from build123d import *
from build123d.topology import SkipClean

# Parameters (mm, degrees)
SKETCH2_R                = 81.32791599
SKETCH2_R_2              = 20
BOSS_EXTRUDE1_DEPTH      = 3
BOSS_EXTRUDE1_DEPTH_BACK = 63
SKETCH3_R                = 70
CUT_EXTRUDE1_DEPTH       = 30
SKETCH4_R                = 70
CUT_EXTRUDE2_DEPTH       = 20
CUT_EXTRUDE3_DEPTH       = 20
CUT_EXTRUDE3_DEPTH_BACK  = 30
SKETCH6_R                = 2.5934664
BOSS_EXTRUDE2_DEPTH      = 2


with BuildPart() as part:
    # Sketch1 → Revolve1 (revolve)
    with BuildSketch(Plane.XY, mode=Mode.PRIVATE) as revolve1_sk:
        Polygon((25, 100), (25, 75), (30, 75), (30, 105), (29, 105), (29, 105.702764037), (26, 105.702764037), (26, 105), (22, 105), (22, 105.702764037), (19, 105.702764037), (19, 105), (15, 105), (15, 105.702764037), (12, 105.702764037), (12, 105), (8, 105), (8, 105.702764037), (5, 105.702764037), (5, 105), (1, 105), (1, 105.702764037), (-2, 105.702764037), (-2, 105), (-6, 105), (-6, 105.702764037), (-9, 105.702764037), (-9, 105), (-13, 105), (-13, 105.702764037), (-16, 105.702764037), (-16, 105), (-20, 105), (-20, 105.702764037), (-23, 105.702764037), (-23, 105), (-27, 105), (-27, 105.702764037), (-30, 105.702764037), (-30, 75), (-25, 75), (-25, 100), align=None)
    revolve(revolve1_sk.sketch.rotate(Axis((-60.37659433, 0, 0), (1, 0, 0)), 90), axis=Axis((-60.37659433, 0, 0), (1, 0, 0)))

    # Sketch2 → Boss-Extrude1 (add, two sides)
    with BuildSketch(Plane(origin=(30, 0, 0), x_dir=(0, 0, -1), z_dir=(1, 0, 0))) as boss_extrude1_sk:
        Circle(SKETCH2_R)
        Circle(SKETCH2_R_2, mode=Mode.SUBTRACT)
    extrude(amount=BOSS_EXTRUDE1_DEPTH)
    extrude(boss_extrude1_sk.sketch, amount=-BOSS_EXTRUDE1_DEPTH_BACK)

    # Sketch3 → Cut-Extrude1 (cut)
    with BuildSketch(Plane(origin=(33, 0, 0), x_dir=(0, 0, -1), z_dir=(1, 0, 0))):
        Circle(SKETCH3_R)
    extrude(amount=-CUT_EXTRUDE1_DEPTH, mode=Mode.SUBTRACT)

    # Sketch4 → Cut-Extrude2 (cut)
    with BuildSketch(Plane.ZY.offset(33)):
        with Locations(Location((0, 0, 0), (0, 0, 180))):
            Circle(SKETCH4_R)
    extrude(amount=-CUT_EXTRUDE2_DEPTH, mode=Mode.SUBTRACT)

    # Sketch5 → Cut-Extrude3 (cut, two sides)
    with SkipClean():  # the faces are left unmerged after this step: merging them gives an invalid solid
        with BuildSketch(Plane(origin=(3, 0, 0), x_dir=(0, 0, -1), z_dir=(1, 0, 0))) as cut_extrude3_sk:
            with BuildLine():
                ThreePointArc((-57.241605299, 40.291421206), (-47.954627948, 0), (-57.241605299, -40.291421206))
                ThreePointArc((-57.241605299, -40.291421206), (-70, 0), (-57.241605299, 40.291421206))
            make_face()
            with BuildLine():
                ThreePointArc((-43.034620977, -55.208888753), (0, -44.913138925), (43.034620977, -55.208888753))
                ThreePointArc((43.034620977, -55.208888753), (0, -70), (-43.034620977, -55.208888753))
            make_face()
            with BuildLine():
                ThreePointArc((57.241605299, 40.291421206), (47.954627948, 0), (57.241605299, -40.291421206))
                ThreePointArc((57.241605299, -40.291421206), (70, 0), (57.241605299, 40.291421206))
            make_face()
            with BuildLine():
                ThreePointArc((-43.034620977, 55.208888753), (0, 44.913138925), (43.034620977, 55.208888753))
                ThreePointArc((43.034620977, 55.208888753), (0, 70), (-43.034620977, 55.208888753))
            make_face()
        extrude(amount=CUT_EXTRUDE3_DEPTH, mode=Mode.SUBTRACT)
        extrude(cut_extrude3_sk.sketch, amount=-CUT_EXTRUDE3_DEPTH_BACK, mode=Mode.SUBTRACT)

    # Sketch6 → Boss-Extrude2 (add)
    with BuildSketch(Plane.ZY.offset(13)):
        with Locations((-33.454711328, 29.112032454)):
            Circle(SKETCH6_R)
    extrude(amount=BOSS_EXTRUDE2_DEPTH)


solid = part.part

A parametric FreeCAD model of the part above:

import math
import FreeCAD as App
import Part
import Sketcher
Q = App.Units.Quantity

doc = App.newDocument("Part")
params = doc.addObject("Spreadsheet::Sheet", "Params")
for row, (alias, value) in enumerate([
    ("sketch1_width", "5 mm"),
    ("sketch1_width2", "1 mm"),
    ("sketch1_width3", "3 mm"),
    ("sketch1_width4", "4 mm"),
    ("sketch1_height", "25 mm"),
    ("revolution_angle", "360 deg"),
    ("sketch2_diameter", "40 mm"),
    ("pad1_length", "3 mm"),
    ("pad1_length2", "63 mm"),
    ("sketch3_diameter", "140 mm"),
    ("pocket1_length", "30 mm"),
    ("sketch4_diameter", "140 mm"),
    ("pocket2_length", "20 mm"),
    ("sketch5_radius", "70 mm"),
    ("pad2_length", "2 mm"),
], start=1):
    params.set(f"A{row}", alias)
    params.set(f"B{row}", "=" + value)
    params.setAlias(f"B{row}", alias)

body = doc.addObject("PartDesign::Body", "Body")

# Sketch on XY plane
sketch1 = doc.addObject("Sketcher::SketchObject", "Sketch")
body.addObject(sketch1)
sketch1.AttachmentSupport = (doc.XY_Plane, [""])
sketch1.MapMode = "FlatFace"
sketch1.addGeometry([
    Part.LineSegment(App.Vector(25, 100, 0), App.Vector(25, 75, 0)),  # 0
    Part.LineSegment(App.Vector(25, 75, 0), App.Vector(30, 75, 0)),  # 1
    Part.LineSegment(App.Vector(30, 75, 0), App.Vector(30, 105, 0)),  # 2
    Part.LineSegment(App.Vector(30, 105, 0), App.Vector(29, 105, 0)),  # 3
    Part.LineSegment(App.Vector(29, 105, 0), App.Vector(29, 105.702764, 0)),  # 4
    Part.LineSegment(App.Vector(29, 105.702764, 0), App.Vector(26, 105.702764, 0)),  # 5
    Part.LineSegment(App.Vector(26, 105.702764, 0), App.Vector(26, 105, 0)),  # 6
    Part.LineSegment(App.Vector(26, 105, 0), App.Vector(22, 105, 0)),  # 7
    Part.LineSegment(App.Vector(22, 105, 0), App.Vector(22, 105.702764, 0)),  # 8
    Part.LineSegment(App.Vector(22, 105.702764, 0), App.Vector(19, 105.702764, 0)),  # 9
    Part.LineSegment(App.Vector(19, 105.702764, 0), App.Vector(19, 105, 0)),  # 10
    Part.LineSegment(App.Vector(19, 105, 0), App.Vector(15, 105, 0)),  # 11
    Part.LineSegment(App.Vector(15, 105, 0), App.Vector(15, 105.702764, 0)),  # 12
    Part.LineSegment(App.Vector(15, 105.702764, 0), App.Vector(12, 105.702764, 0)),  # 13
    Part.LineSegment(App.Vector(12, 105.702764, 0), App.Vector(12, 105, 0)),  # 14
    Part.LineSegment(App.Vector(12, 105, 0), App.Vector(8, 105, 0)),  # 15
    Part.LineSegment(App.Vector(8, 105, 0), App.Vector(8, 105.702764, 0)),  # 16
    Part.LineSegment(App.Vector(8, 105.702764, 0), App.Vector(5, 105.702764, 0)),  # 17
    Part.LineSegment(App.Vector(5, 105.702764, 0), App.Vector(5, 105, 0)),  # 18
    Part.LineSegment(App.Vector(5, 105, 0), App.Vector(1, 105, 0)),  # 19
    Part.LineSegment(App.Vector(1, 105, 0), App.Vector(1, 105.702764, 0)),  # 20
    Part.LineSegment(App.Vector(1, 105.702764, 0), App.Vector(-2, 105.702764, 0)),  # 21
    Part.LineSegment(App.Vector(-2, 105.702764, 0), App.Vector(-2, 105, 0)),  # 22
    Part.LineSegment(App.Vector(-2, 105, 0), App.Vector(-6, 105, 0)),  # 23
    Part.LineSegment(App.Vector(-6, 105, 0), App.Vector(-6, 105.702764, 0)),  # 24
    Part.LineSegment(App.Vector(-6, 105.702764, 0), App.Vector(-9, 105.702764, 0)),  # 25
    Part.LineSegment(App.Vector(-9, 105.702764, 0), App.Vector(-9, 105, 0)),  # 26
    Part.LineSegment(App.Vector(-9, 105, 0), App.Vector(-13, 105, 0)),  # 27
    Part.LineSegment(App.Vector(-13, 105, 0), App.Vector(-13, 105.702764, 0)),  # 28
    Part.LineSegment(App.Vector(-13, 105.702764, 0), App.Vector(-16, 105.702764, 0)),  # 29
    Part.LineSegment(App.Vector(-16, 105.702764, 0), App.Vector(-16, 105, 0)),  # 30
    Part.LineSegment(App.Vector(-16, 105, 0), App.Vector(-20, 105, 0)),  # 31
    Part.LineSegment(App.Vector(-20, 105, 0), App.Vector(-20, 105.702764, 0)),  # 32
    Part.LineSegment(App.Vector(-20, 105.702764, 0), App.Vector(-23, 105.702764, 0)),  # 33
    Part.LineSegment(App.Vector(-23, 105.702764, 0), App.Vector(-23, 105, 0)),  # 34
    Part.LineSegment(App.Vector(-23, 105, 0), App.Vector(-27, 105, 0)),  # 35
    Part.LineSegment(App.Vector(-27, 105, 0), App.Vector(-27, 105.702764, 0)),  # 36
    Part.LineSegment(App.Vector(-27, 105.702764, 0), App.Vector(-30, 105.702764, 0)),  # 37
    Part.LineSegment(App.Vector(-30, 105.702764, 0), App.Vector(-30, 75, 0)),  # 38
    Part.LineSegment(App.Vector(-30, 75, 0), App.Vector(-25, 75, 0)),  # 39
    Part.LineSegment(App.Vector(-25, 75, 0), App.Vector(-25, 100, 0)),  # 40
    Part.LineSegment(App.Vector(-25, 100, 0), App.Vector(25, 100, 0)),  # 41
], False)
sketch1.addConstraint([
    Sketcher.Constraint("Coincident", 0, 2, 1, 1),
    Sketcher.Constraint("Coincident", 1, 2, 2, 1),
    Sketcher.Constraint("Coincident", 2, 2, 3, 1),
    Sketcher.Constraint("Coincident", 3, 2, 4, 1),
    Sketcher.Constraint("Coincident", 4, 2, 5, 1),
    Sketcher.Constraint("Coincident", 5, 2, 6, 1),
    Sketcher.Constraint("Coincident", 6, 2, 7, 1),
    Sketcher.Constraint("Coincident", 7, 2, 8, 1),
    Sketcher.Constraint("Coincident", 8, 2, 9, 1),
    Sketcher.Constraint("Coincident", 9, 2, 10, 1),
    Sketcher.Constraint("Coincident", 10, 2, 11, 1),
    Sketcher.Constraint("Coincident", 11, 2, 12, 1),
    Sketcher.Constraint("Coincident", 12, 2, 13, 1),
    Sketcher.Constraint("Coincident", 13, 2, 14, 1),
    Sketcher.Constraint("Coincident", 14, 2, 15, 1),
    Sketcher.Constraint("Coincident", 15, 2, 16, 1),
    Sketcher.Constraint("Coincident", 16, 2, 17, 1),
    Sketcher.Constraint("Coincident", 17, 2, 18, 1),
    Sketcher.Constraint("Coincident", 18, 2, 19, 1),
    Sketcher.Constraint("Coincident", 19, 2, 20, 1),
    Sketcher.Constraint("Coincident", 20, 2, 21, 1),
    Sketcher.Constraint("Coincident", 21, 2, 22, 1),
    Sketcher.Constraint("Coincident", 22, 2, 23, 1),
    Sketcher.Constraint("Coincident", 23, 2, 24, 1),
    Sketcher.Constraint("Coincident", 24, 2, 25, 1),
    Sketcher.Constraint("Coincident", 25, 2, 26, 1),
    Sketcher.Constraint("Coincident", 26, 2, 27, 1),
    Sketcher.Constraint("Coincident", 27, 2, 28, 1),
    Sketcher.Constraint("Coincident", 28, 2, 29, 1),
    Sketcher.Constraint("Coincident", 29, 2, 30, 1),
    Sketcher.Constraint("Coincident", 30, 2, 31, 1),
    Sketcher.Constraint("Coincident", 31, 2, 32, 1),
    Sketcher.Constraint("Coincident", 32, 2, 33, 1),
    Sketcher.Constraint("Coincident", 33, 2, 34, 1),
    Sketcher.Constraint("Coincident", 34, 2, 35, 1),
    Sketcher.Constraint("Coincident", 35, 2, 36, 1),
    Sketcher.Constraint("Coincident", 36, 2, 37, 1),
    Sketcher.Constraint("Coincident", 37, 2, 38, 1),
    Sketcher.Constraint("Coincident", 38, 2, 39, 1),
    Sketcher.Constraint("Coincident", 39, 2, 40, 1),
    Sketcher.Constraint("Coincident", 40, 2, 41, 1),
    Sketcher.Constraint("Coincident", 41, 2, 0, 1),
    Sketcher.Constraint("Vertical", 0),
    Sketcher.Constraint("Horizontal", 1),
    Sketcher.Constraint("Vertical", 2),
    Sketcher.Constraint("Horizontal", 3),
    Sketcher.Constraint("Vertical", 4),
    Sketcher.Constraint("Horizontal", 5),
    Sketcher.Constraint("Vertical", 6),
    Sketcher.Constraint("Horizontal", 7),
    Sketcher.Constraint("Vertical", 8),
    Sketcher.Constraint("Horizontal", 9),
    Sketcher.Constraint("Vertical", 10),
    Sketcher.Constraint("Horizontal", 11),
    Sketcher.Constraint("Vertical", 12),
    Sketcher.Constraint("Horizontal", 13),
    Sketcher.Constraint("Vertical", 14),
    Sketcher.Constraint("Horizontal", 15),
    Sketcher.Constraint("Vertical", 16),
    Sketcher.Constraint("Horizontal", 17),
    Sketcher.Constraint("Vertical", 18),
    Sketcher.Constraint("Horizontal", 19),
    Sketcher.Constraint("Vertical", 20),
    Sketcher.Constraint("Horizontal", 21),
    Sketcher.Constraint("Vertical", 22),
    Sketcher.Constraint("Horizontal", 23),
    Sketcher.Constraint("Vertical", 24),
    Sketcher.Constraint("Horizontal", 25),
    Sketcher.Constraint("Vertical", 26),
    Sketcher.Constraint("Horizontal", 27),
    Sketcher.Constraint("Vertical", 28),
    Sketcher.Constraint("Horizontal", 29),
    Sketcher.Constraint("Vertical", 30),
    Sketcher.Constraint("Horizontal", 31),
    Sketcher.Constraint("Vertical", 32),
    Sketcher.Constraint("Horizontal", 33),
    Sketcher.Constraint("Vertical", 34),
    Sketcher.Constraint("Horizontal", 35),
    Sketcher.Constraint("Vertical", 36),
    Sketcher.Constraint("Horizontal", 37),
    Sketcher.Constraint("Vertical", 38),
    Sketcher.Constraint("Horizontal", 39),
    Sketcher.Constraint("Vertical", 40),
    Sketcher.Constraint("Horizontal", 41),
    Sketcher.Constraint("Symmetric", 1, 2, 38, 2, -2),
    Sketcher.Constraint("Horizontal", 3, 2, 6, 2),
    Sketcher.Constraint("Horizontal", 5, 2, 8, 2),
    Sketcher.Constraint("Horizontal", 7, 2, 10, 2),
    Sketcher.Constraint("Horizontal", 9, 2, 12, 2),
    Sketcher.Constraint("Horizontal", 11, 2, 14, 2),
    Sketcher.Constraint("Horizontal", 13, 2, 16, 2),
    Sketcher.Constraint("Horizontal", 15, 2, 18, 2),
    Sketcher.Constraint("Horizontal", 17, 2, 20, 2),
    Sketcher.Constraint("Horizontal", 19, 2, 22, 2),
    Sketcher.Constraint("Horizontal", 21, 2, 24, 2),
    Sketcher.Constraint("Horizontal", 23, 2, 26, 2),
    Sketcher.Constraint("Horizontal", 25, 2, 28, 2),
    Sketcher.Constraint("Horizontal", 27, 2, 30, 2),
    Sketcher.Constraint("Horizontal", 29, 2, 32, 2),
    Sketcher.Constraint("Horizontal", 31, 2, 34, 2),
    Sketcher.Constraint("Horizontal", 33, 2, 36, 2),
    Sketcher.Constraint("Equal", 5, 9),
    Sketcher.Constraint("Equal", 7, 11),
    Sketcher.Constraint("Equal", 9, 13),
    Sketcher.Constraint("Equal", 11, 15),
    Sketcher.Constraint("Equal", 13, 17),
    Sketcher.Constraint("Equal", 15, 19),
    Sketcher.Constraint("Equal", 17, 21),
    Sketcher.Constraint("Equal", 19, 23),
    Sketcher.Constraint("Equal", 21, 25),
    Sketcher.Constraint("Equal", 23, 27),
    Sketcher.Constraint("Equal", 25, 29),
    Sketcher.Constraint("Equal", 27, 31),
    Sketcher.Constraint("Equal", 29, 33),
    Sketcher.Constraint("Equal", 31, 35),
    Sketcher.Constraint("Equal", 33, 37),
    Sketcher.Constraint("Equal", 1, 39),
    Sketcher.Constraint("DistanceX", 1, 1, 1, 2, Q("5 mm")),
    Sketcher.Constraint("DistanceX", 3, 2, 3, 1, Q("1 mm")),
    Sketcher.Constraint("DistanceX", 5, 2, 5, 1, Q("3 mm")),
    Sketcher.Constraint("DistanceX", 7, 2, 7, 1, Q("4 mm")),
    Sketcher.Constraint("DistanceY", 0, 2, 0, 1, Q("25 mm")),
    Sketcher.Constraint("DistanceY", 2, 1, 2, 2, Q("30 mm")),
    Sketcher.Constraint("DistanceY", -1, 1, 0, 2, Q("75 mm")),
    Sketcher.Constraint("DistanceY", 4, 1, 4, 2, Q("0.702764 mm")),
])
sketch1.setExpression("Constraints[117]", "Params.sketch1_width")
sketch1.setExpression("Constraints[118]", "Params.sketch1_width2")
sketch1.setExpression("Constraints[119]", "Params.sketch1_width3")
sketch1.setExpression("Constraints[120]", "Params.sketch1_width4")
sketch1.setExpression("Constraints[121]", "Params.sketch1_height")
revolution = doc.addObject("PartDesign::Revolution", "Revolution")
body.addObject(revolution)
revolution.Profile = sketch1
revolution.ReferenceAxis = (sketch1, ["H_Axis"])
revolution.setExpression("Angle", "Params.revolution_angle")

# Sketch on YZ plane
sketch2 = doc.addObject("Sketcher::SketchObject", "Sketch001")
body.addObject(sketch2)
sketch2.AttachmentSupport = (doc.YZ_Plane, [""])
sketch2.MapMode = "FlatFace"
sketch2.AttachmentOffset = App.Placement(App.Vector(0, 0, 30), App.Rotation())
sketch2.addGeometry([
    Part.Circle(App.Vector(0, 0, 0), App.Vector(0, 0, 1), 81.327916),
    Part.Circle(App.Vector(0, 0, 0), App.Vector(0, 0, 1), 20),
], False)
sketch2.addConstraint([
    Sketcher.Constraint("Coincident", 0, 3, -1, 1),
    Sketcher.Constraint("Coincident", 1, 3, -1, 1),
    Sketcher.Constraint("Diameter", 1, Q("40 mm")),
    Sketcher.Constraint("Diameter", 0, Q("162.655832 mm")),
])
sketch2.setExpression("Constraints[2]", "Params.sketch2_diameter")
pad1 = doc.addObject("PartDesign::Pad", "Pad")
body.addObject(pad1)
pad1.Profile = sketch2
pad1.Type = "TwoLengths"
pad1.setExpression("Length", "Params.pad1_length")
pad1.setExpression("Length2", "Params.pad1_length2")

# Sketch on YZ plane
sketch3 = doc.addObject("Sketcher::SketchObject", "Sketch002")
body.addObject(sketch3)
sketch3.AttachmentSupport = (doc.YZ_Plane, [""])
sketch3.MapMode = "FlatFace"
sketch3.AttachmentOffset = App.Placement(App.Vector(0, 0, 33), App.Rotation())
sketch3.addGeometry(Part.Circle(App.Vector(0, 0, 0), App.Vector(0, 0, 1), 70), False)
sketch3.addConstraint([
    Sketcher.Constraint("Coincident", 0, 3, -1, 1),
    Sketcher.Constraint("Diameter", 0, Q("140 mm")),
])
sketch3.setExpression("Constraints[1]", "Params.sketch3_diameter")
pocket1 = doc.addObject("PartDesign::Pocket", "Pocket")
body.addObject(pocket1)
pocket1.Profile = sketch3
pocket1.setExpression("Length", "Params.pocket1_length")

# Sketch on YZ plane
sketch4 = doc.addObject("Sketcher::SketchObject", "Sketch003")
body.addObject(sketch4)
sketch4.AttachmentSupport = (doc.YZ_Plane, [""])
sketch4.MapMode = "FlatFace"
sketch4.AttachmentOffset = App.Placement(App.Vector(0, 0, -33), App.Rotation())
sketch4.addGeometry(Part.Circle(App.Vector(0, 0, 0), App.Vector(0, 0, 1), 70), False)
sketch4.addConstraint([
    Sketcher.Constraint("Coincident", 0, 3, -1, 1),
    Sketcher.Constraint("Diameter", 0, Q("140 mm")),
])
sketch4.setExpression("Constraints[1]", "Params.sketch4_diameter")
pocket2 = doc.addObject("PartDesign::Pocket", "Pocket001")
body.addObject(pocket2)
pocket2.Profile = sketch4
pocket2.setExpression("Length", "Params.pocket2_length")
pocket2.Reversed = True

# Sketch on YZ plane
sketch5 = doc.addObject("Sketcher::SketchObject", "Sketch004")
body.addObject(sketch5)
sketch5.AttachmentSupport = (doc.YZ_Plane, [""])
sketch5.MapMode = "FlatFace"
sketch5.AttachmentOffset = App.Placement(App.Vector(0, 0, 3), App.Rotation())
sketch5.addGeometry([
    Part.ArcOfCircle(Part.Circle(App.Vector(0, 140, 0), App.Vector(0, 0, 1), 92.045372), math.radians(-115.959413), math.radians(-64.040587)),  # 0
    Part.ArcOfCircle(Part.Circle(App.Vector(0, 0, 0), App.Vector(0, 0, 1), 70), math.radians(54.858918), math.radians(125.141082)),  # 1
    Part.ArcOfCircle(Part.Circle(App.Vector(-140, 0, 0), App.Vector(0, 0, 1), 95.086861), math.radians(-26.909476), math.radians(26.909476)),  # 2
    Part.ArcOfCircle(Part.Circle(App.Vector(0, 0, 0), App.Vector(0, 0, 1), 70), math.radians(142.064042), math.radians(217.935958)),  # 3
    Part.ArcOfCircle(Part.Circle(App.Vector(0, -140, 0), App.Vector(0, 0, 1), 92.045372), math.radians(64.040587), math.radians(115.959413)),  # 4
    Part.ArcOfCircle(Part.Circle(App.Vector(0, 0, 0), App.Vector(0, 0, 1), 70), math.radians(-125.141082), math.radians(-54.858918)),  # 5
    Part.ArcOfCircle(Part.Circle(App.Vector(140, 0, 0), App.Vector(0, 0, 1), 95.086861), math.radians(153.090524), math.radians(206.909476)),  # 6
    Part.ArcOfCircle(Part.Circle(App.Vector(0, 0, 0), App.Vector(0, 0, 1), 70), math.radians(-37.935958), math.radians(37.935958)),  # 7
], False)
sketch5.addConstraint([
    Sketcher.Constraint("Coincident", 0, 1, 1, 2),
    Sketcher.Constraint("Coincident", 1, 1, 0, 2),
    Sketcher.Constraint("Coincident", 2, 1, 3, 2),
    Sketcher.Constraint("Coincident", 3, 1, 2, 2),
    Sketcher.Constraint("Coincident", 4, 1, 5, 2),
    Sketcher.Constraint("Coincident", 5, 1, 4, 2),
    Sketcher.Constraint("Coincident", 6, 1, 7, 2),
    Sketcher.Constraint("Coincident", 7, 1, 6, 2),
    Sketcher.Constraint("Coincident", 1, 3, -1, 1),
    Sketcher.Constraint("Coincident", 3, 3, -1, 1),
    Sketcher.Constraint("Coincident", 5, 3, -1, 1),
    Sketcher.Constraint("Coincident", 7, 3, -1, 1),
    Sketcher.Constraint("Equal", 1, 3),
    Sketcher.Constraint("Equal", 0, 4),
    Sketcher.Constraint("Equal", 3, 5),
    Sketcher.Constraint("Equal", 2, 6),
    Sketcher.Constraint("Equal", 5, 7),
    Sketcher.Constraint("Symmetric", 0, 3, 4, 3, -1, 1),
    Sketcher.Constraint("Symmetric", 2, 3, 6, 3, -1, 1),
    Sketcher.Constraint("PointOnObject", 0, 3, -2),
    Sketcher.Constraint("PointOnObject", 2, 3, -1),
    Sketcher.Constraint("Radius", 1, Q("70 mm")),
    Sketcher.Constraint("DistanceY", -1, 1, 0, 3, Q("140 mm")),
    Sketcher.Constraint("DistanceX", 2, 3, -1, 1, Q("140 mm")),
    Sketcher.Constraint("Radius", 2, Q("95.086861 mm")),
    Sketcher.Constraint("Radius", 0, Q("92.045372 mm")),
])
sketch5.setExpression("Constraints[21]", "Params.sketch5_radius")
pocket3 = doc.addObject("PartDesign::Pocket", "Pocket002")
body.addObject(pocket3)
pocket3.Profile = sketch5
pocket3.Type = "ThroughAll"
pocket3.Midplane = True

# Sketch on YZ plane
sketch6 = doc.addObject("Sketcher::SketchObject", "Sketch005")
body.addObject(sketch6)
sketch6.AttachmentSupport = (doc.YZ_Plane, [""])
sketch6.MapMode = "FlatFace"
sketch6.AttachmentOffset = App.Placement(App.Vector(0, 0, -13), App.Rotation())
sketch6.addGeometry(Part.Circle(App.Vector(29.112032, -33.454711, 0), App.Vector(0, 0, 1), 2.593466), False)
sketch6.addConstraint([
    Sketcher.Constraint("Diameter", 0, Q("5.186933 mm")),
    Sketcher.Constraint("DistanceY", 0, 3, -1, 1, Q("33.454711 mm")),
    Sketcher.Constraint("DistanceX", -1, 1, 0, 3, Q("29.112032 mm")),
])
pad2 = doc.addObject("PartDesign::Pad", "Pad001")
body.addObject(pad2)
pad2.Profile = sketch6
pad2.setExpression("Length", "Params.pad2_length")
pad2.Reversed = True

doc.recompute()
